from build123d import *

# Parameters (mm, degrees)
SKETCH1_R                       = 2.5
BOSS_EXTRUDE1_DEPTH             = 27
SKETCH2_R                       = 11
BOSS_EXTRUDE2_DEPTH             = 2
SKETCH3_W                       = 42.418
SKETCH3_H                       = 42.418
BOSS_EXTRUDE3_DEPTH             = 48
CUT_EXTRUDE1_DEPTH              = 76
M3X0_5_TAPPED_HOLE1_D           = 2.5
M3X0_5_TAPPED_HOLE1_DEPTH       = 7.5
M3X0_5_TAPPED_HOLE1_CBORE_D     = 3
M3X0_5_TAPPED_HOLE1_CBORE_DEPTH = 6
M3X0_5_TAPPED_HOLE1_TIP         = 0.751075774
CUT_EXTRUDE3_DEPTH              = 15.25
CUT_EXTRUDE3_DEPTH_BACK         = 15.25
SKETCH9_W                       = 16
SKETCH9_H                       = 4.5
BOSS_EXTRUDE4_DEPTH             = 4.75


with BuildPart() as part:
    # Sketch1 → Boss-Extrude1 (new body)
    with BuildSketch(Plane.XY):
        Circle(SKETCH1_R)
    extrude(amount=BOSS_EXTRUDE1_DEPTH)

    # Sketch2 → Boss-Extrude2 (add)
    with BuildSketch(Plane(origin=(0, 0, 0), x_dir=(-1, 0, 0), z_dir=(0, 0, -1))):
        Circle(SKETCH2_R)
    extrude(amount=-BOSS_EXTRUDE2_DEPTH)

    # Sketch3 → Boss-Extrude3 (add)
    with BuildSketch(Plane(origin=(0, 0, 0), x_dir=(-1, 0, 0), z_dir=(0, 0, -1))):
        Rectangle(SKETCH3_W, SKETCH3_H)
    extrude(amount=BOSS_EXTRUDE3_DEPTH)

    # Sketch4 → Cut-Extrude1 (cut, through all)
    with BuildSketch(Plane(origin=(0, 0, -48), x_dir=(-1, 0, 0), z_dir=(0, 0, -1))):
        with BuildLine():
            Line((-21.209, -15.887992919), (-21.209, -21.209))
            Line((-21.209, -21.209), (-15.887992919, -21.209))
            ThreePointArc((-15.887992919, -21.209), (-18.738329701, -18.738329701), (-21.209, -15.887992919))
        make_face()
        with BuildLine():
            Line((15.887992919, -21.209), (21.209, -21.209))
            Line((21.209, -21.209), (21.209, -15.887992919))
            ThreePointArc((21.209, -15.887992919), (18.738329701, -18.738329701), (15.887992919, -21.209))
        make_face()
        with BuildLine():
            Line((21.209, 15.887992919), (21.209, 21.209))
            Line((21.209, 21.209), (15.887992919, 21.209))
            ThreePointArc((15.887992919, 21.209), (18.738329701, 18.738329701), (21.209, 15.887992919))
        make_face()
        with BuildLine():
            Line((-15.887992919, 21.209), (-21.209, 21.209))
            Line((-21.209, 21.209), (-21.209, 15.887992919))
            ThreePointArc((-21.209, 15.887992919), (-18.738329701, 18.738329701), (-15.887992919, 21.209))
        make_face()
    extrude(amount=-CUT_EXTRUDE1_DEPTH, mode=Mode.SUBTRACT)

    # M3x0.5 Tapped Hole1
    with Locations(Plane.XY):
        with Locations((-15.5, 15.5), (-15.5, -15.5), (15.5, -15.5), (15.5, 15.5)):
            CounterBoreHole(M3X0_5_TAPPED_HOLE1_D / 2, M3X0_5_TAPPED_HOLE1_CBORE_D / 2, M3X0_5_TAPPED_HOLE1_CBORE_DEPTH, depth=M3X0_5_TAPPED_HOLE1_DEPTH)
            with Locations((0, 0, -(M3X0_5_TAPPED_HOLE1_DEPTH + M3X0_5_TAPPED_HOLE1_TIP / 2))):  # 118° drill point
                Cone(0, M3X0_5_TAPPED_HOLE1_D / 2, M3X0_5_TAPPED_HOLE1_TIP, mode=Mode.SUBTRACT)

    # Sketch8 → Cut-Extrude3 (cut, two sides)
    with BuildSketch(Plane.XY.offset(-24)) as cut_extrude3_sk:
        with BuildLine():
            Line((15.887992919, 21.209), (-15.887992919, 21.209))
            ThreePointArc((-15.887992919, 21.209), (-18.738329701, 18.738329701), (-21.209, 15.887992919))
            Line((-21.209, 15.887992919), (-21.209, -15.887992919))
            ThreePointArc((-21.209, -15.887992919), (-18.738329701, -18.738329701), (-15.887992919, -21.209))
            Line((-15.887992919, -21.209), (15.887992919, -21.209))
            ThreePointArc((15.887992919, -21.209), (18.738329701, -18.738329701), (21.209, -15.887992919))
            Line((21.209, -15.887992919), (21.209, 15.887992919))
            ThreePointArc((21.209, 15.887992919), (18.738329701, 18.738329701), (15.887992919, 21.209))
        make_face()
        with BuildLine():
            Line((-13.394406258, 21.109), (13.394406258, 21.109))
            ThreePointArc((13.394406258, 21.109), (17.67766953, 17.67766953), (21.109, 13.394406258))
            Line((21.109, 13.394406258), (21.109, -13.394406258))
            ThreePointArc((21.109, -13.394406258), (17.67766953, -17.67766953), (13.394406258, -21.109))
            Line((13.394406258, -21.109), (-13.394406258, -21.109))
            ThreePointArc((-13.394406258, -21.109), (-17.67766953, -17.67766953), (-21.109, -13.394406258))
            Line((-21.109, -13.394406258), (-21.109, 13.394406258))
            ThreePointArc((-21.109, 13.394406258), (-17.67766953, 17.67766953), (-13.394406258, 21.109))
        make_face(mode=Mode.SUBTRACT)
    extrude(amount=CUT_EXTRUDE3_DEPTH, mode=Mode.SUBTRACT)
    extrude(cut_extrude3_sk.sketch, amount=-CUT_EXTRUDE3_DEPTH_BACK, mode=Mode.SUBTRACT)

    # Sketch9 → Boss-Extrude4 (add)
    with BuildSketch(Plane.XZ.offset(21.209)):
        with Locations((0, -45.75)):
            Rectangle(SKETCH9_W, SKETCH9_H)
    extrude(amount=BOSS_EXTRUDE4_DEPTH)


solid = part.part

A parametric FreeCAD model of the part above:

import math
import FreeCAD as App
import Part
import Sketcher

V = App.Vector
Q = App.Units.Quantity

doc = App.newDocument("Part")
params = doc.addObject("Spreadsheet::Sheet", "Params")
for row, (alias, value) in enumerate([
    ("sketch1_diameter", "5 mm"),
    ("pad1_length", "27 mm"),
    ("sketch2_diameter", "22 mm"),
    ("pad2_length", "2 mm"),
    ("pad3_length", "48 mm"),
    ("sketch4_radius", "26.5 mm"),
    ("sketch5_diameter", "2.5 mm"),
    ("hole_diameter", "2.5 mm"),
    ("hole_depth", "7.5 mm"),
    ("hole_cbore_diameter", "3 mm"),
    ("hole_cbore_depth", "6 mm"),
    ("sketch6_radius", "25 mm"),
    ("sketch6_radius2", "26.5 mm"),
    ("pocket2_length", "15.25 mm"),
    ("pocket2_length2", "15.25 mm"),
    ("sketch7_width", "16 mm"),
    ("sketch7_height", "4.5 mm"),
    ("pad4_length", "4.75 mm"),
], start=1):
    params.set(f"A{row}", alias)
    params.set(f"B{row}", "=" + value)
    params.setAlias(f"B{row}", alias)

body = doc.addObject("PartDesign::Body", "Body")

# Sketch on XY plane
sketch1 = body.newObject("Sketcher::SketchObject", "Sketch")
sketch1.AttachmentSupport = (doc.getObject("XY_Plane"), [""])
sketch1.MapMode = "FlatFace"
sketch1.addGeometry(Part.Circle(V(0, 0, 0), V(0, 0, 1), 2.5), False)
sketch1.addConstraint(Sketcher.Constraint("Coincident", 0, 3, -1, 1))
sketch1.addConstraint(Sketcher.Constraint("Diameter", 0, Q("5 mm")))
sketch1.setExpression("Constraints[1]", "Params.sketch1_diameter")
pad1 = body.newObject("PartDesign::Pad", "Pad")
pad1.Profile = sketch1
pad1.setExpression("Length", "Params.pad1_length")

# Sketch on XY plane
sketch2 = body.newObject("Sketcher::SketchObject", "Sketch001")
sketch2.AttachmentSupport = (doc.getObject("XY_Plane"), [""])
sketch2.MapMode = "FlatFace"
sketch2.addGeometry(Part.Circle(V(0, 0, 0), V(0, 0, 1), 11), False)
sketch2.addConstraint(Sketcher.Constraint("Coincident", 0, 3, -1, 1))
sketch2.addConstraint(Sketcher.Constraint("Diameter", 0, Q("22 mm")))
sketch2.setExpression("Constraints[1]", "Params.sketch2_diameter")
pad2 = body.newObject("PartDesign::Pad", "Pad001")
pad2.Profile = sketch2
pad2.setExpression("Length", "Params.pad2_length")

# Sketch on XY plane
sketch3 = body.newObject("Sketcher::SketchObject", "Sketch002")
sketch3.AttachmentSupport = (doc.getObject("XY_Plane"), [""])
sketch3.MapMode = "FlatFace"
sketch3.addGeometry(Part.LineSegment(V(21.209, 21.209, 0), V(21.209, -21.209, 0)), False)
sketch3.addGeometry(Part.LineSegment(V(21.209, -21.209, 0), V(-21.209, -21.209, 0)), False)
sketch3.addGeometry(Part.LineSegment(V(-21.209, -21.209, 0), V(-21.209, 21.209, 0)), False)
sketch3.addGeometry(Part.LineSegment(V(-21.209, 21.209, 0), V(21.209, 21.209, 0)), False)
sketch3.addConstraint(Sketcher.Constraint("Coincident", 0, 2, 1, 1))
sketch3.addConstraint(Sketcher.Constraint("Coincident", 1, 2, 2, 1))
sketch3.addConstraint(Sketcher.Constraint("Coincident", 2, 2, 3, 1))
sketch3.addConstraint(Sketcher.Constraint("Coincident", 3, 2, 0, 1))
sketch3.addConstraint(Sketcher.Constraint("Vertical", 0))
sketch3.addConstraint(Sketcher.Constraint("Horizontal", 1))
sketch3.addConstraint(Sketcher.Constraint("Vertical", 2))
sketch3.addConstraint(Sketcher.Constraint("Horizontal", 3))
sketch3.addConstraint(Sketcher.Constraint("Symmetric", 0, 2, 2, 2, -1, 1))
sketch3.addConstraint(Sketcher.Constraint("Equal", 3, 0))
sketch3.addConstraint(Sketcher.Constraint("DistanceX", 1, 2, 1, 1, Q("42.418 mm")))
pad3 = body.newObject("PartDesign::Pad", "Pad002")
pad3.Profile = sketch3
pad3.setExpression("Length", "Params.pad3_length")
pad3.Reversed = True

# Sketch on XY plane
sketch4 = body.newObject("Sketcher::SketchObject", "Sketch003")
sketch4.AttachmentSupport = (doc.getObject("XY_Plane"), [""])
sketch4.MapMode = "FlatFace"
sketch4.AttachmentOffset = App.Placement(V(0, 0, -48), App.Rotation())
sketch4.addGeometry(Part.LineSegment(V(21.209, -15.887993, 0), V(21.209, -21.209, 0)), False)
sketch4.addGeometry(Part.LineSegment(V(21.209, -21.209, 0), V(15.887993, -21.209, 0)), False)
sketch4.addGeometry(Part.ArcOfCircle(Part.Circle(V(0, 0, 0), V(0, 0, 1), 26.5), math.radians(-53.162546), math.radians(-36.837454)), False)
sketch4.addGeometry(Part.LineSegment(V(-15.887993, -21.209, 0), V(-21.209, -21.209, 0)), False)
sketch4.addGeometry(Part.LineSegment(V(-21.209, -21.209, 0), V(-21.209, -15.887993, 0)), False)
sketch4.addGeometry(Part.ArcOfCircle(Part.Circle(V(0, 0, 0), V(0, 0, 1), 26.5), math.radians(-143.162546), math.radians(-126.837454)), False)
sketch4.addGeometry(Part.LineSegment(V(-21.209, 15.887993, 0), V(-21.209, 21.209, 0)), False)
sketch4.addGeometry(Part.LineSegment(V(-21.209, 21.209, 0), V(-15.887993, 21.209, 0)), False)
sketch4.addGeometry(Part.ArcOfCircle(Part.Circle(V(0, 0, 0), V(0, 0, 1), 26.5), math.radians(126.837454), math.radians(143.162546)), False)
sketch4.addGeometry(Part.LineSegment(V(15.887993, 21.209, 0), V(21.209, 21.209, 0)), False)
sketch4.addGeometry(Part.LineSegment(V(21.209, 21.209, 0), V(21.209, 15.887993, 0)), False)
sketch4.addGeometry(Part.ArcOfCircle(Part.Circle(V(0, 0, 0), V(0, 0, 1), 26.5), math.radians(36.837454), math.radians(53.162546)), False)
sketch4.addConstraint(Sketcher.Constraint("Coincident", 0, 2, 1, 1))
sketch4.addConstraint(Sketcher.Constraint("Coincident", 1, 2, 2, 1))
sketch4.addConstraint(Sketcher.Constraint("Coincident", 2, 2, 0, 1))
sketch4.addConstraint(Sketcher.Constraint("Coincident", 3, 2, 4, 1))
sketch4.addConstraint(Sketcher.Constraint("Coincident", 4, 2, 5, 1))
sketch4.addConstraint(Sketcher.Constraint("Coincident", 5, 2, 3, 1))
sketch4.addConstraint(Sketcher.Constraint("Coincident", 6, 2, 7, 1))
sketch4.addConstraint(Sketcher.Constraint("Coincident", 7, 2, 8, 1))
sketch4.addConstraint(Sketcher.Constraint("Coincident", 8, 2, 6, 1))
sketch4.addConstraint(Sketcher.Constraint("Coincident", 9, 2, 10, 1))
sketch4.addConstraint(Sketcher.Constraint("Coincident", 10, 2, 11, 1))
sketch4.addConstraint(Sketcher.Constraint("Coincident", 11, 2, 9, 1))
sketch4.addConstraint(Sketcher.Constraint("Vertical", 0))
sketch4.addConstraint(Sketcher.Constraint("Horizontal", 1))
sketch4.addConstraint(Sketcher.Constraint("Horizontal", 3))
sketch4.addConstraint(Sketcher.Constraint("Vertical", 4))
sketch4.addConstraint(Sketcher.Constraint("Vertical", 6))
sketch4.addConstraint(Sketcher.Constraint("Horizontal", 7))
sketch4.addConstraint(Sketcher.Constraint("Horizontal", 9))
sketch4.addConstraint(Sketcher.Constraint("Vertical", 10))
sketch4.addConstraint(Sketcher.Constraint("Coincident", 2, 3, -1, 1))
sketch4.addConstraint(Sketcher.Constraint("Coincident", 5, 3, -1, 1))
sketch4.addConstraint(Sketcher.Constraint("Coincident", 8, 3, -1, 1))
sketch4.addConstraint(Sketcher.Constraint("Coincident", 11, 3, -1, 1))
sketch4.addConstraint(Sketcher.Constraint("Equal", 2, 5))
sketch4.addConstraint(Sketcher.Constraint("Equal", 5, 8))
sketch4.addConstraint(Sketcher.Constraint("Equal", 8, 11))
sketch4.addConstraint(Sketcher.Constraint("Symmetric", 0, 2, 6, 2, -1, 1))
sketch4.addConstraint(Sketcher.Constraint("Symmetric", 3, 2, 9, 2, -1, 1))
sketch4.addConstraint(Sketcher.Constraint("Symmetric", 0, 2, 3, 2, -2))
sketch4.addConstraint(Sketcher.Constraint("Equal", 9, 0))
sketch4.addConstraint(Sketcher.Constraint("Radius", 2, Q("26.5 mm")))
sketch4.addConstraint(Sketcher.Constraint("DistanceX", -1, 1, 0, 2, Q("21.209 mm")))
sketch4.setExpression("Constraints[31]", "Params.sketch4_radius")
pocket1 = body.newObject("PartDesign::Pocket", "Pocket")
pocket1.Profile = sketch4
pocket1.Type = "ThroughAll"
pocket1.Reversed = True

# Sketch on XY plane
sketch5 = body.newObject("Sketcher::SketchObject", "Sketch004")
sketch5.AttachmentSupport = (doc.getObject("XY_Plane"), [""])
sketch5.MapMode = "FlatFace"
sketch5.addGeometry(Part.Circle(V(-15.5, 15.5, 0), V(0, 0, 1), 1.25), False)
sketch5.addGeometry(Part.Circle(V(-15.5, -15.5, 0), V(0, 0, 1), 1.25), False)
sketch5.addGeometry(Part.Circle(V(15.5, -15.5, 0), V(0, 0, 1), 1.25), False)
sketch5.addGeometry(Part.Circle(V(15.5, 15.5, 0), V(0, 0, 1), 1.25), False)
sketch5.addConstraint(Sketcher.Constraint("Equal", 0, 1))
sketch5.addConstraint(Sketcher.Constraint("Equal", 1, 2))
sketch5.addConstraint(Sketcher.Constraint("Equal", 2, 3))
sketch5.addConstraint(Sketcher.Constraint("Symmetric", 0, 3, 2, 3, -1, 1))
sketch5.addConstraint(Sketcher.Constraint("Symmetric", 1, 3, 3, 3, -1, 1))
sketch5.addConstraint(Sketcher.Constraint("Symmetric", 1, 3, 2, 3, -2))
sketch5.addConstraint(Sketcher.Constraint("Diameter", 0, Q("2.5 mm")))
sketch5.addConstraint(Sketcher.Constraint("DistanceY", 1, 3, 0, 3, Q("31 mm")))
sketch5.addConstraint(Sketcher.Constraint("DistanceX", 1, 3, 2, 3, Q("31 mm")))
sketch5.setExpression("Constraints[6]", "Params.sketch5_diameter")
doc.recompute()
hole = body.newObject("PartDesign::Hole", "Hole")
hole.Profile = sketch5
hole.ThreadType = "None"
hole.setExpression("Diameter", "Params.hole_diameter")
hole.DepthType = "Dimension"
hole.setExpression("Depth", "Params.hole_depth")
hole.DrillPoint = "Angled"
hole.DrillPointAngle = 118
hole.HoleCutType = "Counterbore"
hole.setExpression("HoleCutDiameter", "Params.hole_cbore_diameter")
hole.setExpression("HoleCutDepth", "Params.hole_cbore_depth")

# Sketch on XY plane
sketch6 = body.newObject("Sketcher::SketchObject", "Sketch005")
sketch6.AttachmentSupport = (doc.getObject("XY_Plane"), [""])
sketch6.MapMode = "FlatFace"
sketch6.AttachmentOffset = App.Placement(V(0, 0, -24), App.Rotation())
sketch6.addGeometry(Part.LineSegment(V(15.887993, 21.209, 0), V(-15.887993, 21.209, 0)), False)
sketch6.addGeometry(Part.ArcOfCircle(Part.Circle(V(0, 0, 0), V(0, 0, 1), 26.5), math.radians(126.837454), math.radians(143.162546)), False)
sketch6.addGeometry(Part.LineSegment(V(-21.209, 15.887993, 0), V(-21.209, -15.887993, 0)), False)
sketch6.addGeometry(Part.ArcOfCircle(Part.Circle(V(0, 0, 0), V(0, 0, 1), 26.5), math.radians(-143.162546), math.radians(-126.837454)), False)
sketch6.addGeometry(Part.LineSegment(V(-15.887993, -21.209, 0), V(15.887993, -21.209, 0)), False)
sketch6.addGeometry(Part.ArcOfCircle(Part.Circle(V(0, 0, 0), V(0, 0, 1), 26.5), math.radians(-53.162546), math.radians(-36.837454)), False)
sketch6.addGeometry(Part.LineSegment(V(21.209, -15.887993, 0), V(21.209, 15.887993, 0)), False)
sketch6.addGeometry(Part.ArcOfCircle(Part.Circle(V(0, 0, 0), V(0, 0, 1), 26.5), math.radians(36.837454), math.radians(53.162546)), False)
sketch6.addGeometry(Part.ArcOfCircle(Part.Circle(V(0, 0, 0), V(0, 0, 1), 25), math.radians(122.39657), math.radians(147.60343)), False)
sketch6.addGeometry(Part.LineSegment(V(-13.394406, 21.109, 0), V(13.394406, 21.109, 0)), False)
sketch6.addGeometry(Part.ArcOfCircle(Part.Circle(V(0, 0, 0), V(0, 0, 1), 25), math.radians(32.39657), math.radians(57.60343)), False)
sketch6.addGeometry(Part.LineSegment(V(21.109, 13.394406, 0), V(21.109, -13.394406, 0)), False)
sketch6.addGeometry(Part.ArcOfCircle(Part.Circle(V(0, 0, 0), V(0, 0, 1), 25), math.radians(-57.60343), math.radians(-32.39657)), False)
sketch6.addGeometry(Part.LineSegment(V(13.394406, -21.109, 0), V(-13.394406, -21.109, 0)), False)
sketch6.addGeometry(Part.ArcOfCircle(Part.Circle(V(0, 0, 0), V(0, 0, 1), 25), math.radians(-147.60343), math.radians(-122.39657)), False)
sketch6.addGeometry(Part.LineSegment(V(-21.109, -13.394406, 0), V(-21.109, 13.394406, 0)), False)
sketch6.addConstraint(Sketcher.Constraint("Coincident", 0, 2, 1, 1))
sketch6.addConstraint(Sketcher.Constraint("Coincident", 1, 2, 2, 1))
sketch6.addConstraint(Sketcher.Constraint("Coincident", 2, 2, 3, 1))
sketch6.addConstraint(Sketcher.Constraint("Coincident", 3, 2, 4, 1))
sketch6.addConstraint(Sketcher.Constraint("Coincident", 4, 2, 5, 1))
sketch6.addConstraint(Sketcher.Constraint("Coincident", 5, 2, 6, 1))
sketch6.addConstraint(Sketcher.Constraint("Coincident", 6, 2, 7, 1))
sketch6.addConstraint(Sketcher.Constraint("Coincident", 7, 2, 0, 1))
sketch6.addConstraint(Sketcher.Constraint("Coincident", 8, 1, 9, 1))
sketch6.addConstraint(Sketcher.Constraint("Coincident", 9, 2, 10, 2))
sketch6.addConstraint(Sketcher.Constraint("Coincident", 10, 1, 11, 1))
sketch6.addConstraint(Sketcher.Constraint("Coincident", 11, 2, 12, 2))
sketch6.addConstraint(Sketcher.Constraint("Coincident", 12, 1, 13, 1))
sketch6.addConstraint(Sketcher.Constraint("Coincident", 13, 2, 14, 2))
sketch6.addConstraint(Sketcher.Constraint("Coincident", 14, 1, 15, 1))
sketch6.addConstraint(Sketcher.Constraint("Coincident", 15, 2, 8, 2))
sketch6.addConstraint(Sketcher.Constraint("Horizontal", 0))
sketch6.addConstraint(Sketcher.Constraint("Vertical", 2))
sketch6.addConstraint(Sketcher.Constraint("Horizontal", 4))
sketch6.addConstraint(Sketcher.Constraint("Vertical", 6))
sketch6.addConstraint(Sketcher.Constraint("Horizontal", 9))
sketch6.addConstraint(Sketcher.Constraint("Vertical", 11))
sketch6.addConstraint(Sketcher.Constraint("Horizontal", 13))
sketch6.addConstraint(Sketcher.Constraint("Vertical", 15))
sketch6.addConstraint(Sketcher.Constraint("Coincident", 1, 3, -1, 1))
sketch6.addConstraint(Sketcher.Constraint("Coincident", 3, 3, -1, 1))
sketch6.addConstraint(Sketcher.Constraint("Coincident", 5, 3, -1, 1))
sketch6.addConstraint(Sketcher.Constraint("Coincident", 7, 3, -1, 1))
sketch6.addConstraint(Sketcher.Constraint("Coincident", 8, 3, -1, 1))
sketch6.addConstraint(Sketcher.Constraint("Coincident", 10, 3, -1, 1))
sketch6.addConstraint(Sketcher.Constraint("Coincident", 12, 3, -1, 1))
sketch6.addConstraint(Sketcher.Constraint("Coincident", 14, 3, -1, 1))
sketch6.addConstraint(Sketcher.Constraint("Equal", 1, 3))
sketch6.addConstraint(Sketcher.Constraint("Equal", 3, 5))
sketch6.addConstraint(Sketcher.Constraint("Equal", 5, 7))
sketch6.addConstraint(Sketcher.Constraint("Equal", 8, 10))
sketch6.addConstraint(Sketcher.Constraint("Equal", 10, 12))
sketch6.addConstraint(Sketcher.Constraint("Equal", 12, 14))
sketch6.addConstraint(Sketcher.Constraint("Horizontal", 2, 2, 5, 2))
sketch6.addConstraint(Sketcher.Constraint("Horizontal", 11, 2, 14, 1))
sketch6.addConstraint(Sketcher.Constraint("Vertical", 0, 2, 3, 2))
sketch6.addConstraint(Sketcher.Constraint("Vertical", 9, 2, 12, 1))
sketch6.addConstraint(Sketcher.Constraint("Equal", 4, 2))
sketch6.addConstraint(Sketcher.Constraint("Equal", 13, 11))
sketch6.addConstraint(Sketcher.Constraint("Radius", 8, Q("25 mm")))
sketch6.addConstraint(Sketcher.Constraint("Radius", 1, Q("26.5 mm")))
sketch6.addConstraint(Sketcher.Constraint("DistanceY", 8, 1, 0, 2, Q("0.1 mm")))
sketch6.addConstraint(Sketcher.Constraint("DistanceY", -1, 1, 0, 2, Q("21.209 mm")))
sketch6.setExpression("Constraints[44]", "Params.sketch6_radius")
sketch6.setExpression("Constraints[45]", "Params.sketch6_radius2")
pocket2 = body.newObject("PartDesign::Pocket", "Pocket001")
pocket2.Profile = sketch6
pocket2.Type = "TwoLengths"
pocket2.setExpression("Length", "Params.pocket2_length")
pocket2.setExpression("Length2", "Params.pocket2_length2")
pocket2.Reversed = True

# Sketch on XZ plane
sketch7 = body.newObject("Sketcher::SketchObject", "Sketch006")
sketch7.AttachmentSupport = (doc.getObject("XZ_Plane"), [""])
sketch7.MapMode = "FlatFace"
sketch7.AttachmentOffset = App.Placement(V(0, 0, 21.209), App.Rotation())
sketch7.addGeometry(Part.LineSegment(V(-8, -43.5, 0), V(-8, -48, 0)), False)
sketch7.addGeometry(Part.LineSegment(V(-8, -48, 0), V(8, -48, 0)), False)
sketch7.addGeometry(Part.LineSegment(V(8, -48, 0), V(8, -43.5, 0)), False)
sketch7.addGeometry(Part.LineSegment(V(8, -43.5, 0), V(-8, -43.5, 0)), False)
sketch7.addConstraint(Sketcher.Constraint("Coincident", 0, 2, 1, 1))
sketch7.addConstraint(Sketcher.Constraint("Coincident", 1, 2, 2, 1))
sketch7.addConstraint(Sketcher.Constraint("Coincident", 2, 2, 3, 1))
sketch7.addConstraint(Sketcher.Constraint("Coincident", 3, 2, 0, 1))
sketch7.addConstraint(Sketcher.Constraint("Vertical", 0))
sketch7.addConstraint(Sketcher.Constraint("Horizontal", 1))
sketch7.addConstraint(Sketcher.Constraint("Vertical", 2))
sketch7.addConstraint(Sketcher.Constraint("Horizontal", 3))
sketch7.addConstraint(Sketcher.Constraint("DistanceX", 1, 1, 1, 2, Q("16 mm")))
sketch7.addConstraint(Sketcher.Constraint("DistanceY", 0, 2, 0, 1, Q("4.5 mm")))
sketch7.addConstraint(Sketcher.Constraint("DistanceX", 0, 2, -1, 1, Q("8 mm")))
sketch7.addConstraint(Sketcher.Constraint("DistanceY", 0, 2, -1, 1, Q("48 mm")))
sketch7.setExpression("Constraints[8]", "Params.sketch7_width")
sketch7.setExpression("Constraints[9]", "Params.sketch7_height")
pad4 = body.newObject("PartDesign::Pad", "Pad003")
pad4.Profile = sketch7
pad4.setExpression("Length", "Params.pad4_length")

doc.recompute()
